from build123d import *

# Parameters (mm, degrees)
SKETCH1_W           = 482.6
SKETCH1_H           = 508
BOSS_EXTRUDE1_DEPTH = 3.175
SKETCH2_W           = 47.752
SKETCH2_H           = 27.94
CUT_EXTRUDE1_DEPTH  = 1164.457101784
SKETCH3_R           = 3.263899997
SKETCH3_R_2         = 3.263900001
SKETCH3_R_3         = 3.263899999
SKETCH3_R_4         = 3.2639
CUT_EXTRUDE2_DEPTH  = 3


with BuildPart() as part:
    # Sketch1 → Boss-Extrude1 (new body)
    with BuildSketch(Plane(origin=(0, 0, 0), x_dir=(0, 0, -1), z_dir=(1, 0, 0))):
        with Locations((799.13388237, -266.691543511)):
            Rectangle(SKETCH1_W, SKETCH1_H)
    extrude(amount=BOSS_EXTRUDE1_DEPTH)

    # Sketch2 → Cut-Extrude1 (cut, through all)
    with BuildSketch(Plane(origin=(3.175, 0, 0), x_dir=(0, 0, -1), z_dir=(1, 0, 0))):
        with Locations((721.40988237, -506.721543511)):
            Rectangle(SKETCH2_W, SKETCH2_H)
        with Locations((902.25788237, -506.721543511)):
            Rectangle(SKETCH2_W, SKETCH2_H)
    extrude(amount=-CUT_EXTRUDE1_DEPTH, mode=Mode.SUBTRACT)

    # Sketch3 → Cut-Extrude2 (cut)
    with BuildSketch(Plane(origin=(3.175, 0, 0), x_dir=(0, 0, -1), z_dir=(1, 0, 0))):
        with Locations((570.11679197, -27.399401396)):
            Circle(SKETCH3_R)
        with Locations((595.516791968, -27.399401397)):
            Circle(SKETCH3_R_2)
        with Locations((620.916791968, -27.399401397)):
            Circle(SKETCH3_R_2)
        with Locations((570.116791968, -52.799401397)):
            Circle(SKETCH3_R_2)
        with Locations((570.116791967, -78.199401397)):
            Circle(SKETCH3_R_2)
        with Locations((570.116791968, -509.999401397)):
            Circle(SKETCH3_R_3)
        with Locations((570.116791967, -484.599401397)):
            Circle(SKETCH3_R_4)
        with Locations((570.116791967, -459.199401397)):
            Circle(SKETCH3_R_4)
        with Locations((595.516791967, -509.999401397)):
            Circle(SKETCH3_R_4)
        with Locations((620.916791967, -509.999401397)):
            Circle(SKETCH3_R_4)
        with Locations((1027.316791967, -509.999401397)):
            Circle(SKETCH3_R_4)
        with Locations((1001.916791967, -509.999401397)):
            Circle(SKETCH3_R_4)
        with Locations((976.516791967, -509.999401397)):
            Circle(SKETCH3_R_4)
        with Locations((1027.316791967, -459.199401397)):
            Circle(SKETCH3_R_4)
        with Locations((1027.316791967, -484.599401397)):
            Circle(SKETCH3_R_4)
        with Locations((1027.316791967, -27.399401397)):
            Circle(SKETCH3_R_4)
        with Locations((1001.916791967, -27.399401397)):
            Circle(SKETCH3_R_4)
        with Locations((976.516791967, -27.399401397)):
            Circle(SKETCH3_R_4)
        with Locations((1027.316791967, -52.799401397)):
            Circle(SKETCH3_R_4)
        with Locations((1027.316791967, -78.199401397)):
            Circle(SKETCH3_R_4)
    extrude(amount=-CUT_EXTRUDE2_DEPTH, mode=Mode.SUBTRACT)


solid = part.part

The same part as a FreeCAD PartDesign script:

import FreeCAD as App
import Part
import Sketcher

V = App.Vector
Q = App.Units.Quantity


def add_polygon(sketch, points):
    """Adds a closed chain of lines whose ends are joined by coincident constraints."""
    first, n = sketch.GeometryCount, len(points)
    for a, b in zip(points, points[1:] + points[:1]):
        sketch.addGeometry(Part.LineSegment(App.Vector(*a, 0), App.Vector(*b, 0)), False)
    for i in range(n):
        sketch.addConstraint(Sketcher.Constraint("Coincident", first + i, 2, first + (i + 1) % n, 1))

doc = App.newDocument("Part")
body = doc.addObject("PartDesign::Body", "Body")

# Sketch on YZ plane
sketch1 = body.newObject("Sketcher::SketchObject", "Sketch")
sketch1.AttachmentSupport = (doc.getObject("YZ_Plane"), [""])
sketch1.MapMode = "FlatFace"
add_polygon(sketch1, [(-13, -558), (-521, -558), (-521, -1040), (-13, -1040)])  # lines 0-3
sketch1.addConstraint(Sketcher.Constraint("Horizontal", 0))
sketch1.addConstraint(Sketcher.Constraint("Vertical", 1))
sketch1.addConstraint(Sketcher.Constraint("Horizontal", 2))
sketch1.addConstraint(Sketcher.Constraint("Vertical", 3))
sketch1.addConstraint(Sketcher.Constraint("DistanceX", 0, 2, 0, 1, Q("20 in")))
sketch1.addConstraint(Sketcher.Constraint("DistanceY", 1, 2, 1, 1, Q("19 in")))
sketch1.addConstraint(Sketcher.Constraint("DistanceX", 0, 2, -1, 1, Q("520.691544 mm")))
sketch1.addConstraint(Sketcher.Constraint("DistanceY", 0, 2, -1, 1, Q("557.833882 mm")))
pad1 = body.newObject("PartDesign::Pad", "Pad")
pad1.Profile = sketch1
pad1.Length = Q("0.125 in")

# Sketch on YZ plane
sketch2 = body.newObject("Sketcher::SketchObject", "Sketch001")
sketch2.AttachmentSupport = (doc.getObject("YZ_Plane"), [""])
sketch2.MapMode = "FlatFace"
sketch2.AttachmentOffset = App.Placement(V(0, 0, 0.125 * 25.4), App.Rotation())
add_polygon(sketch2, [(-493, -698), (-521, -698), (-521, -745), (-493, -745)])  # lines 0-3
add_polygon(sketch2, [(-493, -878), (-521, -878), (-521, -926), (-493, -926)])  # lines 4-7
sketch2.addConstraint(Sketcher.Constraint("Horizontal", 0))
sketch2.addConstraint(Sketcher.Constraint("Vertical", 1))
sketch2.addConstraint(Sketcher.Constraint("Horizontal", 2))
sketch2.addConstraint(Sketcher.Constraint("Vertical", 3))
sketch2.addConstraint(Sketcher.Constraint("Horizontal", 4))
sketch2.addConstraint(Sketcher.Constraint("Vertical", 5))
sketch2.addConstraint(Sketcher.Constraint("Horizontal", 6))
sketch2.addConstraint(Sketcher.Constraint("Vertical", 7))
sketch2.addConstraint(Sketcher.Constraint("Vertical", 1, 2, 4, 2))
sketch2.addConstraint(Sketcher.Constraint("Vertical", 3, 2, 6, 2))
sketch2.addConstraint(Sketcher.Constraint("Equal", 3, 5))
sketch2.addConstraint(Sketcher.Constraint("DistanceX", 0, 2, 0, 1, Q("1.1 in")))
sketch2.addConstraint(Sketcher.Constraint("DistanceY", 5, 2, 0, 2, Q("9 in")))
sketch2.addConstraint(Sketcher.Constraint("DistanceY", 1, 2, 1, 1, Q("1.88 in")))
sketch2.addConstraint(Sketcher.Constraint("DistanceX", 0, 2, -1, 1, Q("520.691544 mm")))
sketch2.addConstraint(Sketcher.Constraint("DistanceY", 0, 2, -1, 1, Q("697.533882 mm")))
pocket1 = body.newObject("PartDesign::Pocket", "Pocket")
pocket1.Profile = sketch2
pocket1.Type = "ThroughAll"

# Sketch on YZ plane
sketch3 = body.newObject("Sketcher::SketchObject", "Sketch002")
sketch3.AttachmentSupport = (doc.getObject("YZ_Plane"), [""])
sketch3.MapMode = "FlatFace"
sketch3.AttachmentOffset = App.Placement(V(0, 0, 0.125 * 25.4), App.Rotation())
sketch3.addGeometry(Part.Circle(V(-27.4, -570.1, 0), V(0, 0, 1), 3.3), False)
sketch3.addGeometry(Part.Circle(V(-27.4, -595.5, 0), V(0, 0, 1), 3.3), False)
sketch3.addGeometry(Part.Circle(V(-27.4, -620.9, 0), V(0, 0, 1), 3.3), False)
sketch3.addGeometry(Part.Circle(V(-52.8, -570.1, 0), V(0, 0, 1), 3.3), False)
sketch3.addGeometry(Part.Circle(V(-78.2, -570.1, 0), V(0, 0, 1), 3.3), False)
sketch3.addGeometry(Part.Circle(V(-510, -570.1, 0), V(0, 0, 1), 3.3), False)
sketch3.addGeometry(Part.Circle(V(-484.6, -570.1, 0), V(0, 0, 1), 3.3), False)
sketch3.addGeometry(Part.Circle(V(-459.2, -570.1, 0), V(0, 0, 1), 3.3), False)
sketch3.addGeometry(Part.Circle(V(-510, -595.5, 0), V(0, 0, 1), 3.3), False)
sketch3.addGeometry(Part.Circle(V(-510, -620.9, 0), V(0, 0, 1), 3.3), False)
sketch3.addGeometry(Part.Circle(V(-510, -1027.3, 0), V(0, 0, 1), 3.3), False)
sketch3.addGeometry(Part.Circle(V(-510, -1001.9, 0), V(0, 0, 1), 3.3), False)
sketch3.addGeometry(Part.Circle(V(-510, -976.5, 0), V(0, 0, 1), 3.3), False)
sketch3.addGeometry(Part.Circle(V(-459.2, -1027.3, 0), V(0, 0, 1), 3.3), False)
sketch3.addGeometry(Part.Circle(V(-484.6, -1027.3, 0), V(0, 0, 1), 3.3), False)
sketch3.addGeometry(Part.Circle(V(-27.4, -1027.3, 0), V(0, 0, 1), 3.3), False)
sketch3.addGeometry(Part.Circle(V(-27.4, -1001.9, 0), V(0, 0, 1), 3.3), False)
sketch3.addGeometry(Part.Circle(V(-27.4, -976.5, 0), V(0, 0, 1), 3.3), False)
sketch3.addGeometry(Part.Circle(V(-52.8, -1027.3, 0), V(0, 0, 1), 3.3), False)
sketch3.addGeometry(Part.Circle(V(-78.2, -1027.3, 0), V(0, 0, 1), 3.3), False)
sketch3.addConstraint(Sketcher.Constraint("Equal", 0, 1))
sketch3.addConstraint(Sketcher.Constraint("Equal", 1, 2))
sketch3.addConstraint(Sketcher.Constraint("Equal", 2, 3))
sketch3.addConstraint(Sketcher.Constraint("Equal", 3, 4))
sketch3.addConstraint(Sketcher.Constraint("Equal", 4, 5))
sketch3.addConstraint(Sketcher.Constraint("Equal", 5, 6))
sketch3.addConstraint(Sketcher.Constraint("Equal", 6, 7))
sketch3.addConstraint(Sketcher.Constraint("Equal", 7, 8))
sketch3.addConstraint(Sketcher.Constraint("Equal", 8, 9))
sketch3.addConstraint(Sketcher.Constraint("Equal", 9, 10))
sketch3.addConstraint(Sketcher.Constraint("Equal", 10, 11))
sketch3.addConstraint(Sketcher.Constraint("Equal", 11, 12))
sketch3.addConstraint(Sketcher.Constraint("Equal", 12, 13))
sketch3.addConstraint(Sketcher.Constraint("Equal", 13, 14))
sketch3.addConstraint(Sketcher.Constraint("Equal", 14, 15))
sketch3.addConstraint(Sketcher.Constraint("Equal", 15, 16))
sketch3.addConstraint(Sketcher.Constraint("Equal", 16, 17))
sketch3.addConstraint(Sketcher.Constraint("Equal", 17, 18))
sketch3.addConstraint(Sketcher.Constraint("Equal", 18, 19))
sketch3.addConstraint(Sketcher.Constraint("Horizontal", 0, 3, 3, 3))
sketch3.addConstraint(Sketcher.Constraint("Horizontal", 3, 3, 4, 3))
sketch3.addConstraint(Sketcher.Constraint("Horizontal", 4, 3, 5, 3))
sketch3.addConstraint(Sketcher.Constraint("Horizontal", 5, 3, 6, 3))
sketch3.addConstraint(Sketcher.Constraint("Horizontal", 6, 3, 7, 3))
sketch3.addConstraint(Sketcher.Constraint("Horizontal", 1, 3, 8, 3))
sketch3.addConstraint(Sketcher.Constraint("Horizontal", 2, 3, 9, 3))
sketch3.addConstraint(Sketcher.Constraint("Horizontal", 10, 3, 13, 3))
sketch3.addConstraint(Sketcher.Constraint("Horizontal", 13, 3, 14, 3))
sketch3.addConstraint(Sketcher.Constraint("Horizontal", 14, 3, 15, 3))
sketch3.addConstraint(Sketcher.Constraint("Horizontal", 11, 3, 16, 3))
sketch3.addConstraint(Sketcher.Constraint("Horizontal", 12, 3, 17, 3))
sketch3.addConstraint(Sketcher.Constraint("Horizontal", 15, 3, 18, 3))
sketch3.addConstraint(Sketcher.Constraint("Horizontal", 18, 3, 19, 3))
sketch3.addConstraint(Sketcher.Constraint("Vertical", 0, 3, 1, 3))
sketch3.addConstraint(Sketcher.Constraint("Vertical", 1, 3, 2, 3))
sketch3.addConstraint(Sketcher.Constraint("Vertical", 5, 3, 8, 3))
sketch3.addConstraint(Sketcher.Constraint("Vertical", 8, 3, 9, 3))
sketch3.addConstraint(Sketcher.Constraint("Vertical", 9, 3, 10, 3))
sketch3.addConstraint(Sketcher.Constraint("Vertical", 10, 3, 11, 3))
sketch3.addConstraint(Sketcher.Constraint("Vertical", 11, 3, 12, 3))
sketch3.addConstraint(Sketcher.Constraint("Vertical", 7, 3, 13, 3))
sketch3.addConstraint(Sketcher.Constraint("Vertical", 6, 3, 14, 3))
sketch3.addConstraint(Sketcher.Constraint("Vertical", 2, 3, 15, 3))
sketch3.addConstraint(Sketcher.Constraint("Vertical", 15, 3, 16, 3))
sketch3.addConstraint(Sketcher.Constraint("Vertical", 16, 3, 17, 3))
sketch3.addConstraint(Sketcher.Constraint("Vertical", 3, 3, 18, 3))
sketch3.addConstraint(Sketcher.Constraint("Vertical", 4, 3, 19, 3))
sketch3.addConstraint(Sketcher.Constraint("Diameter", 0, Q("0.257 in")))
sketch3.addConstraint(Sketcher.Constraint("DistanceY", 1, 3, 0, 3, Q("1 in")))
sketch3.addConstraint(Sketcher.Constraint("DistanceY", 2, 3, 1, 3, Q("1 in")))
sketch3.addConstraint(Sketcher.Constraint("DistanceX", 3, 3, 0, 3, Q("1 in")))
sketch3.addConstraint(Sketcher.Constraint("DistanceX", 4, 3, 3, 3, Q("1 in")))
sketch3.addConstraint(Sketcher.Constraint("DistanceX", 5, 3, 4, 3, Q("17 in")))
sketch3.addConstraint(Sketcher.Constraint("DistanceX", 5, 3, 6, 3, Q("1 in")))
sketch3.addConstraint(Sketcher.Constraint("DistanceX", 6, 3, 7, 3, Q("1 in")))
sketch3.addConstraint(Sketcher.Constraint("DistanceY", 10, 3, 9, 3, Q("16 in")))
sketch3.addConstraint(Sketcher.Constraint("DistanceY", 10, 3, 11, 3, Q("1 in")))
sketch3.addConstraint(Sketcher.Constraint("DistanceY", 11, 3, 12, 3, Q("1 in")))
sketch3.addConstraint(Sketcher.Constraint("DistanceX", 0, 3, -1, 1, Q("27.399401 mm")))
sketch3.addConstraint(Sketcher.Constraint("DistanceY", 0, 3, -1, 1, Q("570.116792 mm")))
pocket2 = body.newObject("PartDesign::Pocket", "Pocket001")
pocket2.Profile = sketch3
pocket2.Length = 3

doc.recompute()
